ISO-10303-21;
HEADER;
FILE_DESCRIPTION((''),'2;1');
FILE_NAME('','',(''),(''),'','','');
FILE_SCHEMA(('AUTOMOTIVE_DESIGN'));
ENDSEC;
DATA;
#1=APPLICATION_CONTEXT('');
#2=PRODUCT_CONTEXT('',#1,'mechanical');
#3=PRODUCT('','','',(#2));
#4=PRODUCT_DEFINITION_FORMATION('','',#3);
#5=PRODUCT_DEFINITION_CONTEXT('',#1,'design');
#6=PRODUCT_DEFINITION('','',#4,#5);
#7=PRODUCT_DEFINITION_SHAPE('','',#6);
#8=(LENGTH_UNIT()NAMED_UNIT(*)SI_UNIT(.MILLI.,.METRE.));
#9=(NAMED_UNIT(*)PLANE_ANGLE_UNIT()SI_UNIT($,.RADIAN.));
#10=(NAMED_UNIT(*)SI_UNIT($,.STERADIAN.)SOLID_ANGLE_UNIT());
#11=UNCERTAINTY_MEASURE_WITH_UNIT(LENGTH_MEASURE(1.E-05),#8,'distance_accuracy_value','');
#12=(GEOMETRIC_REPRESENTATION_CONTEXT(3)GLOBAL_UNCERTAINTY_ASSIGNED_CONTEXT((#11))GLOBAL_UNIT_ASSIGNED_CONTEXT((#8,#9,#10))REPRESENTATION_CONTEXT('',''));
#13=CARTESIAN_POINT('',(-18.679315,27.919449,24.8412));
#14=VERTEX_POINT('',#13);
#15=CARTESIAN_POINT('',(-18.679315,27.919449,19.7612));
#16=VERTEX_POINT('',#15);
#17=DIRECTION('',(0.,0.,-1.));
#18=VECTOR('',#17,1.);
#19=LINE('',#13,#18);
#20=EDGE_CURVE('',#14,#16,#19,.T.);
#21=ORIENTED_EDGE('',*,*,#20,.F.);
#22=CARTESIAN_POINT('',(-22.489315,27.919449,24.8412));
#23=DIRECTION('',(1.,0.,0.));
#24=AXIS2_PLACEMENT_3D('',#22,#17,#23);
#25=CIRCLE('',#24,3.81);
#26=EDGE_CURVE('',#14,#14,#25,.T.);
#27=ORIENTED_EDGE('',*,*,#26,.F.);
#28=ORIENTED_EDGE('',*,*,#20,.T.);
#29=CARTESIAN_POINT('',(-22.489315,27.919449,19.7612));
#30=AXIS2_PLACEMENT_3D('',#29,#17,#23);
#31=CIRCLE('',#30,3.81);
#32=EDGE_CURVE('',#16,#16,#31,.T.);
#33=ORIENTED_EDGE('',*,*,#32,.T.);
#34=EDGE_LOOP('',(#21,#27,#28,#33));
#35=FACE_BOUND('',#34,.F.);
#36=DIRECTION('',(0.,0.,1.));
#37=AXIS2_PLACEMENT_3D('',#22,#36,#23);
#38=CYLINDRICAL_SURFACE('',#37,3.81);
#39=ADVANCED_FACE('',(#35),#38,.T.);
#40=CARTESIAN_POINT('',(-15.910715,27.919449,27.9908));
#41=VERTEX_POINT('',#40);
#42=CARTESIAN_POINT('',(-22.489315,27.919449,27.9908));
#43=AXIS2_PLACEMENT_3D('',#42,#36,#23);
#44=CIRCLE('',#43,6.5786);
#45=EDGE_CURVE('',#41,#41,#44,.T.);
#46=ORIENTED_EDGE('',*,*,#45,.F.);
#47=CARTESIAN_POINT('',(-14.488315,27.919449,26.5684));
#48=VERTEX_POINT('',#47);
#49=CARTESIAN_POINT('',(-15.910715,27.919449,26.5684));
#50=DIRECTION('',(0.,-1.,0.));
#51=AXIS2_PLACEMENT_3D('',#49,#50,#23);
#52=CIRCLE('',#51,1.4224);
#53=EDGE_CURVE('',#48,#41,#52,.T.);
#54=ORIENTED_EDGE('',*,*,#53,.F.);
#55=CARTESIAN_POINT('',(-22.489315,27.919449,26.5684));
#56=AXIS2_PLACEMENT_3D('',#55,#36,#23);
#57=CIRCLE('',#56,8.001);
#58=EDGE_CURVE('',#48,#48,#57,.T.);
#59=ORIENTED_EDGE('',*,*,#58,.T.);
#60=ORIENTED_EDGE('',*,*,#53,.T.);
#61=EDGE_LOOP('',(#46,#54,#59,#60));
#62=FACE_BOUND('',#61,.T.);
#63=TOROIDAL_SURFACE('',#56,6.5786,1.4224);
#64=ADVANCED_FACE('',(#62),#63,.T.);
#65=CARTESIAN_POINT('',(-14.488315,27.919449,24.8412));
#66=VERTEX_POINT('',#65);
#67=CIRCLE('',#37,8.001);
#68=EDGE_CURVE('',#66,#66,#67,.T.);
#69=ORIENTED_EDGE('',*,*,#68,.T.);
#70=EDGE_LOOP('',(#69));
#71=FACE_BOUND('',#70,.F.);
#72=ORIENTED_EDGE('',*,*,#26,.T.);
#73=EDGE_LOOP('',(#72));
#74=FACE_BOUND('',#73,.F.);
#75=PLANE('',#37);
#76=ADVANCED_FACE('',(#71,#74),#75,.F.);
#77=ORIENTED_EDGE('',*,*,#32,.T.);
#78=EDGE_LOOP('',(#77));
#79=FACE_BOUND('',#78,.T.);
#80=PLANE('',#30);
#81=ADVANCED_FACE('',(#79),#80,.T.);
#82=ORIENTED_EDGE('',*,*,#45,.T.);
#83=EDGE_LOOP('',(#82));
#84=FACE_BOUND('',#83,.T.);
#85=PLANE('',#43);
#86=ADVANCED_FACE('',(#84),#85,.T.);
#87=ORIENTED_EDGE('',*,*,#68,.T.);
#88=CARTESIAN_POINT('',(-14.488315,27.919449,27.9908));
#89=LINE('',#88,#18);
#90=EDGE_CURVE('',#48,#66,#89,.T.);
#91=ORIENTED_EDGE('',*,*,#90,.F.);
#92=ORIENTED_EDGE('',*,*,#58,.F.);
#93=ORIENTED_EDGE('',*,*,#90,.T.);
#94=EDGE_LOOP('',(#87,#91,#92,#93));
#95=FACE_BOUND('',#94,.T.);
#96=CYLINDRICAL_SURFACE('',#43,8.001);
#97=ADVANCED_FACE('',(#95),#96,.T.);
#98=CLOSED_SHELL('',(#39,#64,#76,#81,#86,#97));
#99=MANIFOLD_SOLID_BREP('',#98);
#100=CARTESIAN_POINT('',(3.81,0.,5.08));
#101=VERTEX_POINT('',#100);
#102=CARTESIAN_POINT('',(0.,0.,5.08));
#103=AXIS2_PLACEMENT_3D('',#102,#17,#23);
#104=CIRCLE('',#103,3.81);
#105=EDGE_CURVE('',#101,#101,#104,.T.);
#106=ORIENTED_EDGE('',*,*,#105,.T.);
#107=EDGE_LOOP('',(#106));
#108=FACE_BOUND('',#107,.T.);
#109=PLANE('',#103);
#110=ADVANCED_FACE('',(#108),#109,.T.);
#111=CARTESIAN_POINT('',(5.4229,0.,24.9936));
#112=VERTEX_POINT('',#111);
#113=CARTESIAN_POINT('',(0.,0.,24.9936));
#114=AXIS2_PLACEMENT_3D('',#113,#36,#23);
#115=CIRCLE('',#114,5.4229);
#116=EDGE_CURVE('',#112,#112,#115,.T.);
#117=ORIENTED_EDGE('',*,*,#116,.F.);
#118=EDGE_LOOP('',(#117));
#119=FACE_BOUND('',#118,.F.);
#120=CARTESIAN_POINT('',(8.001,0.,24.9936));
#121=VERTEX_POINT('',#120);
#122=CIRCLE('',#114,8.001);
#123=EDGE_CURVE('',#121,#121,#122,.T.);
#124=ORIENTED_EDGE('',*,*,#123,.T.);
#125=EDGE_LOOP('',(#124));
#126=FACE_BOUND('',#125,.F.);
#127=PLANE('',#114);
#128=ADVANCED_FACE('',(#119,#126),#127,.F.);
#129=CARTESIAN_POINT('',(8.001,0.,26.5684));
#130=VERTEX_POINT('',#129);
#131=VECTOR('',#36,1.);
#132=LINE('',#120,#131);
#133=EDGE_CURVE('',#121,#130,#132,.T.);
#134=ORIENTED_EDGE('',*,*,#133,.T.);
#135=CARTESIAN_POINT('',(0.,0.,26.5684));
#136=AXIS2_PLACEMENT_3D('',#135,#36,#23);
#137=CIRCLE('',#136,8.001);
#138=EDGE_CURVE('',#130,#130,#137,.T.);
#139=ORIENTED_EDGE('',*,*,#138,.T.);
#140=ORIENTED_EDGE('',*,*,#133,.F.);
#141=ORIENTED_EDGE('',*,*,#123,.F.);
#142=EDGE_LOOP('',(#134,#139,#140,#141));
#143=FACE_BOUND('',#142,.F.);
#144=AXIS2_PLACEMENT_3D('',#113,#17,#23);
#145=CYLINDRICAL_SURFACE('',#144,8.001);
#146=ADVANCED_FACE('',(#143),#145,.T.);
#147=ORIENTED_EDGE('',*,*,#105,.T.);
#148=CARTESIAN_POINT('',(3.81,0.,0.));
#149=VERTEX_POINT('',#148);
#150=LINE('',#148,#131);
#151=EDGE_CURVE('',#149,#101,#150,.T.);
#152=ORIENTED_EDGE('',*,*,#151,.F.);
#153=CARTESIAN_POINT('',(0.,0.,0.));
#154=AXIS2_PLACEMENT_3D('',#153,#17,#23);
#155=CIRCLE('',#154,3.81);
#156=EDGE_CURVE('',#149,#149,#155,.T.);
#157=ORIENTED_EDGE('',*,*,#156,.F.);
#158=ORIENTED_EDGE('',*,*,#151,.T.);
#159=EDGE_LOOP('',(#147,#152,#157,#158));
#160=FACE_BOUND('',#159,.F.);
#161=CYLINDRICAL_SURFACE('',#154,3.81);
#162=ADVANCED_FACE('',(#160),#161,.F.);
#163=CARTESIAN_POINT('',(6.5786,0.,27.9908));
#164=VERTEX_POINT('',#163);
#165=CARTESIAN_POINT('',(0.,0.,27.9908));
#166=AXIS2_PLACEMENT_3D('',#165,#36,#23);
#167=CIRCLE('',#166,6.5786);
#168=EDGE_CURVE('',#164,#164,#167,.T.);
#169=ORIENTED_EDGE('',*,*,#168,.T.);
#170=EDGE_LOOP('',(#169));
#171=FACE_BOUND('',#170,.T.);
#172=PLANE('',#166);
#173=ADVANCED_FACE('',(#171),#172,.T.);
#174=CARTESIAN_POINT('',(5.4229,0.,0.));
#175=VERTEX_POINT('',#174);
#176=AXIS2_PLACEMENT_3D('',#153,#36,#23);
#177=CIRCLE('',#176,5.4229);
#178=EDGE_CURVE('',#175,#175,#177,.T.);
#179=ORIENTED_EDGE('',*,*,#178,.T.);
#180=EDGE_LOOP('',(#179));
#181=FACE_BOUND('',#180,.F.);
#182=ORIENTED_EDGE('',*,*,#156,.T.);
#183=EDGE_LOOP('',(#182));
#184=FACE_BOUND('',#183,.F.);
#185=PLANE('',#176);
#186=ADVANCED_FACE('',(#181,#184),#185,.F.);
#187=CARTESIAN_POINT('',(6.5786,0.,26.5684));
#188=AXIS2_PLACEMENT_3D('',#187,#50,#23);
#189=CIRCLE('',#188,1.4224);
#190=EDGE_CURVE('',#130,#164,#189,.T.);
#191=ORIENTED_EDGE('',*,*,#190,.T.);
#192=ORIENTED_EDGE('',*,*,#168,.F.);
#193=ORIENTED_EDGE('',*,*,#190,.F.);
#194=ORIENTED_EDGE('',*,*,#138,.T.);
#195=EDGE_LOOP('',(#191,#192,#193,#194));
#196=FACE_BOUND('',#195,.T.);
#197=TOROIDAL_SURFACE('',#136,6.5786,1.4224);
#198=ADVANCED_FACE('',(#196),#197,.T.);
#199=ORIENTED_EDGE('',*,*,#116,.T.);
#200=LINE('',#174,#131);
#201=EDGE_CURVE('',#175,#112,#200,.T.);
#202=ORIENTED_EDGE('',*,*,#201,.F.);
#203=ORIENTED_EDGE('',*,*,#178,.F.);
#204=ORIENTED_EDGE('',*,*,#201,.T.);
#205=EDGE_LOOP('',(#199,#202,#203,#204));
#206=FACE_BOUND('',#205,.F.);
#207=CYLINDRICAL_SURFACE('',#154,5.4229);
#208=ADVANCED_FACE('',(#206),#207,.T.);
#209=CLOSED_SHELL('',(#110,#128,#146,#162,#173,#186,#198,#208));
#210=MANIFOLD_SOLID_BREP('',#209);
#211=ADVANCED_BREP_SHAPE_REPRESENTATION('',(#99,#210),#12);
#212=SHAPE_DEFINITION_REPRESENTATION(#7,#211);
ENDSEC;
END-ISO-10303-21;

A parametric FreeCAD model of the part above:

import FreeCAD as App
import Part
import Sketcher
from FreeCAD import Vector
Q = App.Units.Quantity


def edges_at(feature, points):
    """Names of the edges that pass closest to the given points."""
    edges = feature.Shape.Edges
    near = lambda p: min(range(len(edges)), key=lambda i: edges[i].distToShape(Part.Vertex(*p))[0])
    return sorted({f"Edge{near(p) + 1}" for p in points})

doc = App.newDocument("Part")
body = doc.addObject("PartDesign::Body", "Body")

# Sketch on XY plane
sketch1 = body.newObject("Sketcher::SketchObject", "Sketch")
sketch1.AttachmentSupport = (doc.getObject("XY_Plane"), [""])
sketch1.MapMode = "FlatFace"
sketch1.addGeometry(Part.Circle(Vector(0, 0, 0), Vector(0, 0, 1), 5), False)
sketch1.addConstraint(Sketcher.Constraint("Coincident", 0, 3, -1, 1))
sketch1.addConstraint(Sketcher.Constraint("Diameter", 0, Q("0.427 in")))
pad1 = body.newObject("PartDesign::Pad", "Pad")
pad1.Profile = sketch1
pad1.Length = Q("0.984 in")

# Sketch on XY plane
sketch2 = body.newObject("Sketcher::SketchObject", "Sketch001")
sketch2.AttachmentSupport = (doc.getObject("XY_Plane"), [""])
sketch2.MapMode = "FlatFace"
sketch2.AttachmentOffset = App.Placement(Vector(0, 0, 0.984 * 25.4), App.Rotation())
sketch2.addGeometry(Part.Circle(Vector(0, 0, 0), Vector(0, 0, 1), 8), False)
sketch2.addConstraint(Sketcher.Constraint("Coincident", 0, 3, -1, 1))
sketch2.addConstraint(Sketcher.Constraint("Diameter", 0, Q("0.63 in")))
pad2 = body.newObject("PartDesign::Pad", "Pad001")
pad2.Profile = sketch2
pad2.Length = Q("0.118 in")
doc.recompute()

fillet = body.newObject("PartDesign::Fillet", "Fillet")
fillet.Base = (pad2, edges_at(pad2, [(-8.001, 0, 27.991)]))
fillet.Radius = Q("0.056 in")

# Sketch on XY plane
sketch3 = body.newObject("Sketcher::SketchObject", "Sketch002")
sketch3.AttachmentSupport = (doc.getObject("XY_Plane"), [""])
sketch3.MapMode = "FlatFace"
sketch3.addGeometry(Part.Circle(Vector(0, 0, 0), Vector(0, 0, 1), 3.8), False)
sketch3.addConstraint(Sketcher.Constraint("Coincident", 0, 3, -1, 1))
sketch3.addConstraint(Sketcher.Constraint("Diameter", 0, Q("0.3 in")))
pocket1 = body.newObject("PartDesign::Pocket", "Pocket")
pocket1.Profile = sketch3
pocket1.Length = Q("0.2 in")
pocket1.Reversed = True
body2 = doc.addObject("PartDesign::Body", "Body001")

# Sketch on XY plane
sketch4 = body2.newObject("Sketcher::SketchObject", "Sketch003")
sketch4.AttachmentSupport = (doc.getObject("XY_Plane001"), [""])
sketch4.MapMode = "FlatFace"
sketch4.AttachmentOffset = App.Placement(Vector(0, 0, 1.102 * 25.4), App.Rotation())
sketch4.addGeometry(Part.Circle(Vector(-22, 28, 0), Vector(0, 0, 1), 8), False)
sketch4.addConstraint(Sketcher.Constraint("Diameter", 0, Q("0.63 in")))
sketch4.addConstraint(Sketcher.Constraint("DistanceY", -1, 1, 0, 3, Q("27.919449 mm")))
sketch4.addConstraint(Sketcher.Constraint("DistanceX", 0, 3, -1, 1, Q("22.489315 mm")))
pad3 = body2.newObject("PartDesign::Pad", "Pad002")
pad3.Profile = sketch4
pad3.Length = Q("0.124 in")
pad3.Reversed = True

# Sketch on XY plane
sketch5 = body2.newObject("Sketcher::SketchObject", "Sketch004")
sketch5.AttachmentSupport = (doc.getObject("XY_Plane001"), [""])
sketch5.MapMode = "FlatFace"
sketch5.AttachmentOffset = App.Placement(Vector(0, 0, 0.978 * 25.4), App.Rotation())
sketch5.addGeometry(Part.Circle(Vector(-22.5, 27.9, 0), Vector(0, 0, 1), 3.8), False)
sketch5.addConstraint(Sketcher.Constraint("Diameter", 0, Q("0.3 in")))
sketch5.addConstraint(Sketcher.Constraint("DistanceY", -1, 1, 0, 3, Q("27.919449 mm")))
sketch5.addConstraint(Sketcher.Constraint("DistanceX", 0, 3, -1, 1, Q("22.489315 mm")))
pad4 = body2.newObject("PartDesign::Pad", "Pad003")
pad4.Profile = sketch5
pad4.Length = Q("0.2 in")
pad4.Reversed = True
doc.recompute()

fillet2 = body2.newObject("PartDesign::Fillet", "Fillet001")
fillet2.Base = (pad4, edges_at(pad4, [(-30.49, 27.919, 27.991)]))
fillet2.Radius = Q("0.056 in")

doc.recompute()
